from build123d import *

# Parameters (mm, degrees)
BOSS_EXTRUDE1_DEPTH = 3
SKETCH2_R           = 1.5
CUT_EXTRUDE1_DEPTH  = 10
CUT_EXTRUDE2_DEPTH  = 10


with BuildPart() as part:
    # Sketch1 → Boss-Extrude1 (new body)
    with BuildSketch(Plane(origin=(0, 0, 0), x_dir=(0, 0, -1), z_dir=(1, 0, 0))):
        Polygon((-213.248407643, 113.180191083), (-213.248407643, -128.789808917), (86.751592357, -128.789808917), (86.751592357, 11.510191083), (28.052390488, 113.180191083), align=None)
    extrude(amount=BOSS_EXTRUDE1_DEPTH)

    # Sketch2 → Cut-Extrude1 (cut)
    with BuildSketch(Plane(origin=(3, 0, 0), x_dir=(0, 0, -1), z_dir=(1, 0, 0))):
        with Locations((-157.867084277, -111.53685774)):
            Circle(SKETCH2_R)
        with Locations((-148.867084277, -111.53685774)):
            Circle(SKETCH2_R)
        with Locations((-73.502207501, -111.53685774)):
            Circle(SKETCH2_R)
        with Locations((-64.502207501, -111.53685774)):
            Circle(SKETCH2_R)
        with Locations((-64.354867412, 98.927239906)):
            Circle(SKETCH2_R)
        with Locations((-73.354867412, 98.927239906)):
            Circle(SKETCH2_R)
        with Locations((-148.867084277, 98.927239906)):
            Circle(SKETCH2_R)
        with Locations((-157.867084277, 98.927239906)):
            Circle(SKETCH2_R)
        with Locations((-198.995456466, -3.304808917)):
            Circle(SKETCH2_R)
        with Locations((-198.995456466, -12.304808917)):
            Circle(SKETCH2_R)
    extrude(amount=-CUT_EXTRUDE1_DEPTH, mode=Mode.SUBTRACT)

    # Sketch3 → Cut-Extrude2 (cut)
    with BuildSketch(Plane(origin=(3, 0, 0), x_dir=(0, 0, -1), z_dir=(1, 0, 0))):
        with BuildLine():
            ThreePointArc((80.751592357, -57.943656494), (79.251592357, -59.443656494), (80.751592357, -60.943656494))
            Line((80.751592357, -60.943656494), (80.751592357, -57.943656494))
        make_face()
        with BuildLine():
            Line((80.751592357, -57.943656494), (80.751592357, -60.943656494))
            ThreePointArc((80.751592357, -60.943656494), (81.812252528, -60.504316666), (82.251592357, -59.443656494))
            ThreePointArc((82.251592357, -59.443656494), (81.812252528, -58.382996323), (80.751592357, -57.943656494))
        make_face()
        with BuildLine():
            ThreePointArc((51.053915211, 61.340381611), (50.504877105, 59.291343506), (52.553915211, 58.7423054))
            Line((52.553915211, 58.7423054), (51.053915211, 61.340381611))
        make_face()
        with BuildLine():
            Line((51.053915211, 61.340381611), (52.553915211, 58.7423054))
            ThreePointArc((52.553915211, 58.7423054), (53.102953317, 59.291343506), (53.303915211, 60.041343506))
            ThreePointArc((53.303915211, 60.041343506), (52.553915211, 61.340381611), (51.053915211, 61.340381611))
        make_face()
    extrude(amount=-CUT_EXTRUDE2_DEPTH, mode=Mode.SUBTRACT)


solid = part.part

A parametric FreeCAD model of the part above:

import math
import FreeCAD as App
import Part
import Sketcher
from FreeCAD import Vector
Q = App.Units.Quantity

doc = App.newDocument("Part")
body = doc.addObject("PartDesign::Body", "Body")

# Sketch on YZ plane
sketch1 = body.newObject("Sketcher::SketchObject", "Sketch")
sketch1.AttachmentSupport = (doc.getObject("YZ_Plane"), [""])
sketch1.MapMode = "FlatFace"
sketch1.addGeometry([
    Part.LineSegment(Vector(113, 213, 0), Vector(-129, 213, 0)),  # 0
    Part.LineSegment(Vector(-129, 213, 0), Vector(-129, -87, 0)),  # 1
    Part.LineSegment(Vector(-129, -87, 0), Vector(12, -87, 0)),  # 2
    Part.LineSegment(Vector(12, -87, 0), Vector(113, -28, 0)),  # 3
    Part.LineSegment(Vector(113, -28, 0), Vector(113, 213, 0)),  # 4
], False)
sketch1.addConstraint([
    Sketcher.Constraint("Coincident", 0, 2, 1, 1),
    Sketcher.Constraint("Coincident", 1, 2, 2, 1),
    Sketcher.Constraint("Coincident", 2, 2, 3, 1),
    Sketcher.Constraint("Coincident", 3, 2, 4, 1),
    Sketcher.Constraint("Coincident", 4, 2, 0, 1),
    Sketcher.Constraint("Horizontal", 0),
    Sketcher.Constraint("Vertical", 1),
    Sketcher.Constraint("Horizontal", 2),
    Sketcher.Constraint("Vertical", 4),
    Sketcher.Constraint("DistanceY", 1, 2, 1, 1, Q("300 mm")),
    Sketcher.Constraint("Angle", 3, Q("30 deg")),
    Sketcher.Constraint("DistanceX", 2, 1, 2, 2, Q("140.3 mm")),
    Sketcher.Constraint("DistanceX", 0, 2, 0, 1, Q("241.97 mm")),
    Sketcher.Constraint("DistanceX", 0, 2, -1, 1, Q("128.789809 mm")),
    Sketcher.Constraint("DistanceY", 3, 2, -1, 1, Q("28.05239 mm")),
])
pad1 = body.newObject("PartDesign::Pad", "Pad")
pad1.Profile = sketch1
pad1.Length = 3

# Sketch on YZ plane
sketch2 = body.newObject("Sketcher::SketchObject", "Sketch001")
sketch2.AttachmentSupport = (doc.getObject("YZ_Plane"), [""])
sketch2.MapMode = "FlatFace"
sketch2.AttachmentOffset = App.Placement(Vector(0, 0, 3), App.Rotation())
sketch2.addGeometry([
    Part.Circle(Vector(-111.5, 157.9, 0), Vector(0, 0, 1), 1.5),  # 0
    Part.Circle(Vector(-111.5, 148.9, 0), Vector(0, 0, 1), 1.5),  # 1
    Part.Circle(Vector(-111.5, 73.5, 0), Vector(0, 0, 1), 1.5),  # 2
    Part.Circle(Vector(-111.5, 64.5, 0), Vector(0, 0, 1), 1.5),  # 3
    Part.Circle(Vector(98.9, 64.4, 0), Vector(0, 0, 1), 1.5),  # 4
    Part.Circle(Vector(98.9, 73.4, 0), Vector(0, 0, 1), 1.5),  # 5
    Part.Circle(Vector(98.9, 148.9, 0), Vector(0, 0, 1), 1.5),  # 6
    Part.Circle(Vector(98.9, 157.9, 0), Vector(0, 0, 1), 1.5),  # 7
    Part.Circle(Vector(-3.3, 199, 0), Vector(0, 0, 1), 1.5),  # 8
    Part.Circle(Vector(-12.3, 199, 0), Vector(0, 0, 1), 1.5),  # 9
], False)
sketch2.addConstraint([
    Sketcher.Constraint("Equal", 0, 1),
    Sketcher.Constraint("Equal", 1, 2),
    Sketcher.Constraint("Equal", 2, 3),
    Sketcher.Constraint("Equal", 3, 4),
    Sketcher.Constraint("Equal", 4, 5),
    Sketcher.Constraint("Equal", 5, 6),
    Sketcher.Constraint("Equal", 6, 7),
    Sketcher.Constraint("Equal", 7, 8),
    Sketcher.Constraint("Equal", 8, 9),
    Sketcher.Constraint("Horizontal", 1, 3, 6, 3),
    Sketcher.Constraint("Horizontal", 0, 3, 7, 3),
    Sketcher.Constraint("Horizontal", 8, 3, 9, 3),
    Sketcher.Constraint("Vertical", 0, 3, 1, 3),
    Sketcher.Constraint("Vertical", 1, 3, 2, 3),
    Sketcher.Constraint("Vertical", 2, 3, 3, 3),
    Sketcher.Constraint("Vertical", 4, 3, 5, 3),
    Sketcher.Constraint("Vertical", 5, 3, 6, 3),
    Sketcher.Constraint("Vertical", 6, 3, 7, 3),
    Sketcher.Constraint("Diameter", 0, Q("3 mm")),
    Sketcher.Constraint("DistanceY", 1, 3, 0, 3, Q("9 mm")),
    Sketcher.Constraint("DistanceY", 3, 3, 2, 3, Q("9 mm")),
    Sketcher.Constraint("DistanceY", 4, 3, 5, 3, Q("9 mm")),
    Sketcher.Constraint("DistanceX", 9, 3, 8, 3, Q("9 mm")),
    Sketcher.Constraint("DistanceX", -1, 1, 4, 3, Q("98.92724 mm")),
    Sketcher.Constraint("DistanceX", 8, 3, -1, 1, Q("3.304809 mm")),
    Sketcher.Constraint("DistanceY", 4, 3, 3, 3, Q("0.14734 mm")),
    Sketcher.Constraint("DistanceX", 0, 3, 8, 3, Q("108.232049 mm")),
    Sketcher.Constraint("DistanceY", 5, 3, 8, 3, Q("125.640589 mm")),
    Sketcher.Constraint("DistanceY", -1, 1, 0, 3, Q("157.867084 mm")),
    Sketcher.Constraint("DistanceY", -1, 1, 2, 3, Q("73.502208 mm")),
])
pocket1 = body.newObject("PartDesign::Pocket", "Pocket")
pocket1.Profile = sketch2
pocket1.Length = 10

# Sketch on YZ plane
sketch3 = body.newObject("Sketcher::SketchObject", "Sketch002")
sketch3.AttachmentSupport = (doc.getObject("YZ_Plane"), [""])
sketch3.MapMode = "FlatFace"
sketch3.AttachmentOffset = App.Placement(Vector(0, 0, 3), App.Rotation())
sketch3.addGeometry([
    Part.ArcOfCircle(Part.Circle(Vector(-59.4, -80.8, 0), Vector(0, 0, 1), 1.5), math.radians(0), math.radians(180)),  # 0
    Part.ArcOfCircle(Part.Circle(Vector(-59.4, -80.8, 0), Vector(0, 0, 1), 1.5), math.radians(-180), math.radians(-90)),  # 1
    Part.ArcOfCircle(Part.Circle(Vector(-59.4, -80.8, 0), Vector(0, 0, 1), 1.5), math.radians(-90), math.radians(0)),  # 2
    Part.ArcOfCircle(Part.Circle(Vector(60, -51.8, 0), Vector(0, 0, 1), 1.5), math.radians(30), math.radians(210)),  # 3
    Part.ArcOfCircle(Part.Circle(Vector(60, -51.8, 0), Vector(0, 0, 1), 1.5), math.radians(-150), math.radians(-90)),  # 4
    Part.ArcOfCircle(Part.Circle(Vector(60, -51.8, 0), Vector(0, 0, 1), 1.5), math.radians(-90), math.radians(30)),  # 5
], False)
sketch3.addConstraint([
    Sketcher.Constraint("Tangent", 0, 2, 1, 1),
    Sketcher.Constraint("Tangent", 1, 2, 2, 1),
    Sketcher.Constraint("Tangent", 2, 2, 0, 1),
    Sketcher.Constraint("Tangent", 3, 2, 4, 1),
    Sketcher.Constraint("Tangent", 4, 2, 5, 1),
    Sketcher.Constraint("Tangent", 5, 2, 3, 1),
    Sketcher.Constraint("Equal", 2, 3),
    Sketcher.Constraint("Horizontal", 2, 3, 0, 2),
    Sketcher.Constraint("Horizontal", 0, 2, 2, 2),
    Sketcher.Constraint("Vertical", 2, 3, 1, 2),
    Sketcher.Constraint("Vertical", 5, 3, 4, 2),
    Sketcher.Constraint("Radius", 0, Q("1.5 mm")),
    Sketcher.Constraint("DistanceY", 3, 2, 5, 2, Q("1.5 mm")),
    Sketcher.Constraint("DistanceY", 3, 2, 4, 3, Q("0.75 mm")),
    Sketcher.Constraint("DistanceX", 1, 3, 3, 3, Q("119.485 mm")),
    Sketcher.Constraint("DistanceX", -1, 1, 5, 2, Q("61.340382 mm")),
    Sketcher.Constraint("DistanceY", 0, 3, -1, 1, Q("80.751592 mm")),
    Sketcher.Constraint("DistanceY", 3, 3, -1, 1, Q("51.803915 mm")),
])
pocket2 = body.newObject("PartDesign::Pocket", "Pocket001")
pocket2.Profile = sketch3
pocket2.Length = 10

doc.recompute()
